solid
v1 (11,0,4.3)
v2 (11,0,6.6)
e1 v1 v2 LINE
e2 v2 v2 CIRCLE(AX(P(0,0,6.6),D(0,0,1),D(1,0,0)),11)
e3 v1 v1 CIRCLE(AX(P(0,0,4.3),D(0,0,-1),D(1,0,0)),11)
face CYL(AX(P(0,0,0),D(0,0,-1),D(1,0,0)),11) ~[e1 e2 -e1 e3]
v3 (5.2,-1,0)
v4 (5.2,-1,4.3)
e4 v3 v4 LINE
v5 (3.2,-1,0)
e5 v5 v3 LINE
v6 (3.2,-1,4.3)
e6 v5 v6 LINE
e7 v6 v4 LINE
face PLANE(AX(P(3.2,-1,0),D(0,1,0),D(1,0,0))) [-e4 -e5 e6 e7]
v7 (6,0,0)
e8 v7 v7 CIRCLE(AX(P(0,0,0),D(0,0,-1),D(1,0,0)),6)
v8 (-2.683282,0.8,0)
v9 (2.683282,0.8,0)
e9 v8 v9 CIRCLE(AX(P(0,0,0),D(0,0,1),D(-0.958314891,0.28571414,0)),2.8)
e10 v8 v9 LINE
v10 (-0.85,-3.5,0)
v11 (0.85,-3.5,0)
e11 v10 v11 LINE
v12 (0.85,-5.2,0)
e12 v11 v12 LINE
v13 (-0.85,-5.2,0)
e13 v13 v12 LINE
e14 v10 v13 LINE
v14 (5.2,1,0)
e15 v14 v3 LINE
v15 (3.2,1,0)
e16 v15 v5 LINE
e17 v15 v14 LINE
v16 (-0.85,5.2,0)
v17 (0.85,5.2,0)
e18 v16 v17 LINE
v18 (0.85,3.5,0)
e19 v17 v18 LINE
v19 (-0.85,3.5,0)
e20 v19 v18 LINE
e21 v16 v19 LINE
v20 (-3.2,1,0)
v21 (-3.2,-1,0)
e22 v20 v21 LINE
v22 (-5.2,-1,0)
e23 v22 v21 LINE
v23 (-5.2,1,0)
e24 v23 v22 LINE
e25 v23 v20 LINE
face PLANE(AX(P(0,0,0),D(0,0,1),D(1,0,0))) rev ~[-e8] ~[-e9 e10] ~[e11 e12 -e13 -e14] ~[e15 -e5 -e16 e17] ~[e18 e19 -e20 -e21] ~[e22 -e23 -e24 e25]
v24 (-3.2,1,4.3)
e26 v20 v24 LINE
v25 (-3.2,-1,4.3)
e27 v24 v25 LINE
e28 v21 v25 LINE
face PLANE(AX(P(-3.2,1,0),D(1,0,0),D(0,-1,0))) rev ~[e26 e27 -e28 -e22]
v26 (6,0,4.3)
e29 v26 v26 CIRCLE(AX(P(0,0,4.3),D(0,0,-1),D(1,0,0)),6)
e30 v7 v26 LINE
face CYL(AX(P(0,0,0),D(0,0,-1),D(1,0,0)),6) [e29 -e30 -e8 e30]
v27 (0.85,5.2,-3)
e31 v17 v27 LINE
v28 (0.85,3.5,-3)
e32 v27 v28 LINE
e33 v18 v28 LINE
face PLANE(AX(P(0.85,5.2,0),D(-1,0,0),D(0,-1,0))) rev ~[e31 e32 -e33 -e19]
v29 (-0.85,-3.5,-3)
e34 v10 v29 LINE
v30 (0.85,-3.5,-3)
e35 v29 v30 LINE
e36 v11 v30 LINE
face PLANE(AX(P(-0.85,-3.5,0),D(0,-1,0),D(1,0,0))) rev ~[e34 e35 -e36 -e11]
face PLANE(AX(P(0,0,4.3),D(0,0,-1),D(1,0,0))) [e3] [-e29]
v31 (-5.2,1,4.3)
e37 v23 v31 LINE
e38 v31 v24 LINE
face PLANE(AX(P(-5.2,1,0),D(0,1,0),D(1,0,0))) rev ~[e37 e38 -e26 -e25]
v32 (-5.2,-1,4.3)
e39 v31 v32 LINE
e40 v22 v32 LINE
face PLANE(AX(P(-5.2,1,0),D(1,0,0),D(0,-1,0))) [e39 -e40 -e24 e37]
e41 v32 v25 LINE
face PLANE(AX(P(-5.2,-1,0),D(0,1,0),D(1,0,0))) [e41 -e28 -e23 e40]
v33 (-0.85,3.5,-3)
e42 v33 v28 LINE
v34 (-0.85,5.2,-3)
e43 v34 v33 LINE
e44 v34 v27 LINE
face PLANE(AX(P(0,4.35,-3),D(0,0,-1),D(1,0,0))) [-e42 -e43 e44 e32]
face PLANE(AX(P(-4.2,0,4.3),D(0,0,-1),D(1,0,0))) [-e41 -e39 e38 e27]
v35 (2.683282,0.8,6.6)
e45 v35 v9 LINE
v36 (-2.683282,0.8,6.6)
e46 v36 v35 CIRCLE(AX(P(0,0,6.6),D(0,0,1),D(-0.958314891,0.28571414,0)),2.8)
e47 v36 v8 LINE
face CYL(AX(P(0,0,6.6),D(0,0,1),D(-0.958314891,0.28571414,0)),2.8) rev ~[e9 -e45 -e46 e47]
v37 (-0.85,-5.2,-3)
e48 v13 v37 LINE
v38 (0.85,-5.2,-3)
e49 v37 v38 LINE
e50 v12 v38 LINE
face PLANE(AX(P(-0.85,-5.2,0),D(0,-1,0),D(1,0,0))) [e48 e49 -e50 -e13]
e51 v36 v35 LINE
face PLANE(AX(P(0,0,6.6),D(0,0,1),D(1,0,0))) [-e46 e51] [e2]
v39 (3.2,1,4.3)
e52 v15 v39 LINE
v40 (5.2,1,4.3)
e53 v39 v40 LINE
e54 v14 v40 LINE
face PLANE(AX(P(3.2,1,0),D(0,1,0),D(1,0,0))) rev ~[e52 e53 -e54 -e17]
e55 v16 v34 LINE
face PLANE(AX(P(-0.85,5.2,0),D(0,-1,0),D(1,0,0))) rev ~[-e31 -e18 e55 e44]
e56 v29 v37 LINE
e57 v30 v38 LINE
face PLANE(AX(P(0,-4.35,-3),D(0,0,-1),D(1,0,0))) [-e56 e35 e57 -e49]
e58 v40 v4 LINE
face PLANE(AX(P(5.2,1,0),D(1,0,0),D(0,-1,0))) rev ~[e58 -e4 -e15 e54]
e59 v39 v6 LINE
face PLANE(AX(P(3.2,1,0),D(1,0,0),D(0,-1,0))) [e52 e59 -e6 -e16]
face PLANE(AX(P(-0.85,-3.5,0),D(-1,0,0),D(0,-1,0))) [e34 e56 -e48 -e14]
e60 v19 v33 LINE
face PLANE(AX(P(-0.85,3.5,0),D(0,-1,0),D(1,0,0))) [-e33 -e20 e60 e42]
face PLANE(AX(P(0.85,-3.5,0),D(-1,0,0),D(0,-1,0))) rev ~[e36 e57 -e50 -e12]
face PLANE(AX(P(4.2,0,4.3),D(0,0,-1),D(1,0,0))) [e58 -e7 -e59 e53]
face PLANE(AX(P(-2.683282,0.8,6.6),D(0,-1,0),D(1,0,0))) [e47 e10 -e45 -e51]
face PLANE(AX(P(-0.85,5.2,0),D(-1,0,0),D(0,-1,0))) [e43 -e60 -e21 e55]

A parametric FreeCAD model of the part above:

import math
import FreeCAD as App
import Part
import Sketcher
Q = App.Units.Quantity

doc = App.newDocument("Part")
body = doc.addObject("PartDesign::Body", "Body")

# Sketch on XY plane
sketch1 = body.newObject("Sketcher::SketchObject", "Sketch")
sketch1.AttachmentSupport = (doc.getObject("XY_Plane"), [""])
sketch1.MapMode = "FlatFace"
sketch1.addGeometry(Part.Circle(App.Vector(0, 0, 0), App.Vector(0, 0, 1), 11), False)
sketch1.addConstraint([
    Sketcher.Constraint("Coincident", 0, 3, -1, 1),
    Sketcher.Constraint("Diameter", 0, Q("22 mm")),
])
pad1 = body.newObject("PartDesign::Pad", "Pad")
pad1.Profile = sketch1
pad1.Length = 6.6

# Sketch on XY plane
sketch2 = body.newObject("Sketcher::SketchObject", "Sketch001")
sketch2.AttachmentSupport = (doc.getObject("XY_Plane"), [""])
sketch2.MapMode = "FlatFace"
sketch2.addGeometry([
    Part.Circle(App.Vector(0, 0, 0), App.Vector(0, 0, 1), 11),
    Part.Circle(App.Vector(0, 0, 0), App.Vector(0, 0, 1), 6),
], False)
sketch2.addConstraint([
    Sketcher.Constraint("Coincident", 0, 3, -1, 1),
    Sketcher.Constraint("Coincident", 1, 3, -1, 1),
    Sketcher.Constraint("Diameter", 0, Q("22 mm")),
    Sketcher.Constraint("Diameter", 1, Q("12 mm")),
])
pocket1 = body.newObject("PartDesign::Pocket", "Pocket")
pocket1.Profile = sketch2
pocket1.Length = 4.3
pocket1.Reversed = True

# Sketch on XY plane
sketch3 = body.newObject("Sketcher::SketchObject", "Sketch002")
sketch3.AttachmentSupport = (doc.getObject("XY_Plane"), [""])
sketch3.MapMode = "FlatFace"
sketch3.AttachmentOffset = App.Placement(App.Vector(0, 0, 6.6), App.Rotation())
sketch3.addGeometry([
    Part.LineSegment(App.Vector(2.7, 0.8, 0), App.Vector(-2.7, 0.8, 0)),
    Part.ArcOfCircle(Part.Circle(App.Vector(0, 0, 0), App.Vector(0, 0, 1), 2.8), math.radians(163), math.radians(377)),
], False)
sketch3.addConstraint([
    Sketcher.Constraint("Coincident", 0, 1, 1, 2),
    Sketcher.Constraint("Coincident", 1, 1, 0, 2),
    Sketcher.Constraint("Horizontal", 0),
    Sketcher.Constraint("Coincident", 1, 3, -1, 1),
    Sketcher.Constraint("Radius", 1, Q("2.8 mm")),
    Sketcher.Constraint("DistanceY", -1, 1, 0, 1, Q("0.8 mm")),
])
pocket2 = body.newObject("PartDesign::Pocket", "Pocket001")
pocket2.Profile = sketch3
pocket2.Type = "ThroughAll"

# Sketch on XY plane
sketch4 = body.newObject("Sketcher::SketchObject", "Sketch003")
sketch4.AttachmentSupport = (doc.getObject("XY_Plane"), [""])
sketch4.MapMode = "FlatFace"
sketch4.addGeometry([
    Part.LineSegment(App.Vector(-0.8, -5.2, 0), App.Vector(-0.8, -3.5, 0)),  # 0
    Part.LineSegment(App.Vector(-0.8, -3.5, 0), App.Vector(0.8, -3.5, 0)),  # 1
    Part.LineSegment(App.Vector(0.8, -3.5, 0), App.Vector(0.8, -5.2, 0)),  # 2
    Part.LineSegment(App.Vector(0.8, -5.2, 0), App.Vector(-0.8, -5.2, 0)),  # 3
    Part.LineSegment(App.Vector(-0.8, 3.5, 0), App.Vector(-0.8, 5.2, 0)),  # 4
    Part.LineSegment(App.Vector(-0.8, 5.2, 0), App.Vector(0.8, 5.2, 0)),  # 5
    Part.LineSegment(App.Vector(0.8, 5.2, 0), App.Vector(0.8, 3.5, 0)),  # 6
    Part.LineSegment(App.Vector(0.8, 3.5, 0), App.Vector(-0.8, 3.5, 0)),  # 7
], False)
sketch4.addConstraint([
    Sketcher.Constraint("Coincident", 0, 2, 1, 1),
    Sketcher.Constraint("Coincident", 1, 2, 2, 1),
    Sketcher.Constraint("Coincident", 2, 2, 3, 1),
    Sketcher.Constraint("Coincident", 3, 2, 0, 1),
    Sketcher.Constraint("Coincident", 4, 2, 5, 1),
    Sketcher.Constraint("Coincident", 5, 2, 6, 1),
    Sketcher.Constraint("Coincident", 6, 2, 7, 1),
    Sketcher.Constraint("Coincident", 7, 2, 4, 1),
    Sketcher.Constraint("Vertical", 0),
    Sketcher.Constraint("Horizontal", 1),
    Sketcher.Constraint("Vertical", 2),
    Sketcher.Constraint("Horizontal", 3),
    Sketcher.Constraint("Vertical", 4),
    Sketcher.Constraint("Horizontal", 5),
    Sketcher.Constraint("Vertical", 6),
    Sketcher.Constraint("Horizontal", 7),
    Sketcher.Constraint("Symmetric", 2, 2, 4, 2, -1, 1),
    Sketcher.Constraint("Symmetric", 0, 2, 6, 2, -1, 1),
    Sketcher.Constraint("Vertical", 3, 2, 4, 2),
    Sketcher.Constraint("Equal", 7, 0),
    Sketcher.Constraint("DistanceX", 1, 1, 1, 2, Q("1.7 mm")),
    Sketcher.Constraint("DistanceY", 1, 2, 6, 2, Q("7 mm")),
])
pad2 = body.newObject("PartDesign::Pad", "Pad001")
pad2.Profile = sketch4
pad2.Length = 3
pad2.Reversed = True

# Sketch on XY plane
sketch5 = body.newObject("Sketcher::SketchObject", "Sketch004")
sketch5.AttachmentSupport = (doc.getObject("XY_Plane"), [""])
sketch5.MapMode = "FlatFace"
sketch5.addGeometry([
    Part.LineSegment(App.Vector(-5.2, -1, 0), App.Vector(-5.2, 1, 0)),  # 0
    Part.LineSegment(App.Vector(-5.2, 1, 0), App.Vector(-3.2, 1, 0)),  # 1
    Part.LineSegment(App.Vector(-3.2, 1, 0), App.Vector(-3.2, -1, 0)),  # 2
    Part.LineSegment(App.Vector(-3.2, -1, 0), App.Vector(-5.2, -1, 0)),  # 3
    Part.LineSegment(App.Vector(3.2, -1, 0), App.Vector(3.2, 1, 0)),  # 4
    Part.LineSegment(App.Vector(3.2, 1, 0), App.Vector(5.2, 1, 0)),  # 5
    Part.LineSegment(App.Vector(5.2, 1, 0), App.Vector(5.2, -1, 0)),  # 6
    Part.LineSegment(App.Vector(5.2, -1, 0), App.Vector(3.2, -1, 0)),  # 7
], False)
sketch5.addConstraint([
    Sketcher.Constraint("Coincident", 0, 2, 1, 1),
    Sketcher.Constraint("Coincident", 1, 2, 2, 1),
    Sketcher.Constraint("Coincident", 2, 2, 3, 1),
    Sketcher.Constraint("Coincident", 3, 2, 0, 1),
    Sketcher.Constraint("Coincident", 4, 2, 5, 1),
    Sketcher.Constraint("Coincident", 5, 2, 6, 1),
    Sketcher.Constraint("Coincident", 6, 2, 7, 1),
    Sketcher.Constraint("Coincident", 7, 2, 4, 1),
    Sketcher.Constraint("Vertical", 0),
    Sketcher.Constraint("Horizontal", 1),
    Sketcher.Constraint("Vertical", 2),
    Sketcher.Constraint("Horizontal", 3),
    Sketcher.Constraint("Vertical", 4),
    Sketcher.Constraint("Horizontal", 5),
    Sketcher.Constraint("Vertical", 6),
    Sketcher.Constraint("Horizontal", 7),
    Sketcher.Constraint("Symmetric", 2, 2, 4, 2, -1, 1),
    Sketcher.Constraint("Symmetric", 0, 2, 6, 2, -1, 1),
    Sketcher.Constraint("Horizontal", 1, 2, 4, 2),
    Sketcher.Constraint("Equal", 7, 0),
    Sketcher.Constraint("DistanceX", 1, 1, 1, 2, Q("2 mm")),
    Sketcher.Constraint("DistanceX", 0, 2, -1, 1, Q("5.2 mm")),
])
pocket3 = body.newObject("PartDesign::Pocket", "Pocket002")
pocket3.Profile = sketch5
pocket3.Length = 4.3
pocket3.Reversed = True

doc.recompute()
